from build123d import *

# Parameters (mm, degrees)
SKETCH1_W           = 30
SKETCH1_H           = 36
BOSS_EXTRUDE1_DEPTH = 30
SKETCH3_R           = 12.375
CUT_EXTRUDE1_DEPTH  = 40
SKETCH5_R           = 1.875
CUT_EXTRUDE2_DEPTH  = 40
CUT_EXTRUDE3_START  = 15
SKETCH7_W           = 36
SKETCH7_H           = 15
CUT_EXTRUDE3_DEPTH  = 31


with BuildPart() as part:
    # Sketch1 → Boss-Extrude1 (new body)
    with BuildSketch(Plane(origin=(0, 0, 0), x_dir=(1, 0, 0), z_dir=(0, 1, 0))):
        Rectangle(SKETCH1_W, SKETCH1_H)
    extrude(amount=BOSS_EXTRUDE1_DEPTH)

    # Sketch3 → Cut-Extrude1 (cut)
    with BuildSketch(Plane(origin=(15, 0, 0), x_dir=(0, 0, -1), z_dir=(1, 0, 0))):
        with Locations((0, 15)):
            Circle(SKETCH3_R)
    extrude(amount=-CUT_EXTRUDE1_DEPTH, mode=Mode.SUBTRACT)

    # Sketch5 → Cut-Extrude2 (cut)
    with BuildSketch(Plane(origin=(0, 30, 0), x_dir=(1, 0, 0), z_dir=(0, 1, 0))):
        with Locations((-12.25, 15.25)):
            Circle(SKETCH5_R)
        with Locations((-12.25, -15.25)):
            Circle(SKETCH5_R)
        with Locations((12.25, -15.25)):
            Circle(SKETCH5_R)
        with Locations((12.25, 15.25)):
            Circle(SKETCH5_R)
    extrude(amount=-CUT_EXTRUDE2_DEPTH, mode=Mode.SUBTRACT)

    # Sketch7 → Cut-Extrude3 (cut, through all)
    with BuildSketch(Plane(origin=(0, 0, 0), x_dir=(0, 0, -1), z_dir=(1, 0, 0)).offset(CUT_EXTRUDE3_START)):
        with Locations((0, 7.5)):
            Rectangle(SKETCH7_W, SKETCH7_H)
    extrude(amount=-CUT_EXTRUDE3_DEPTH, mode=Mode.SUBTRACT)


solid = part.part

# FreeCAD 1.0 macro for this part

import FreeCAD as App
import Part
import Sketcher

V = App.Vector


def add_polygon(sketch, points):
    """Adds a closed chain of lines whose ends are joined by coincident constraints."""
    first, n = sketch.GeometryCount, len(points)
    for a, b in zip(points, points[1:] + points[:1]):
        sketch.addGeometry(Part.LineSegment(App.Vector(*a, 0), App.Vector(*b, 0)), False)
    for i in range(n):
        sketch.addConstraint(Sketcher.Constraint("Coincident", first + i, 2, first + (i + 1) % n, 1))

doc = App.newDocument("Part")
body = doc.addObject("PartDesign::Body", "Body")

sketch1 = body.newObject("Sketcher::SketchObject", "Sketch")
sketch1.AttachmentSupport = (doc.getObject("XZ_Plane"), [""])
sketch1.MapMode = "FlatFace"
add_polygon(sketch1, [(-15, -18), (-15, 18), (15, 18), (15, -18)])
sketch1.addConstraint([
    Sketcher.Constraint("Vertical", 0),
    Sketcher.Constraint("Horizontal", 1),
    Sketcher.Constraint("Vertical", 2),
    Sketcher.Constraint("Horizontal", 3),
    Sketcher.Constraint("Symmetric", 0, 2, 2, 2, -1, 1),
    Sketcher.Constraint("DistanceX", 1, 1, 1, 2, 30.0),
    Sketcher.Constraint("DistanceY", 0, 1, 0, 2, 36.0),
])
pad1 = body.newObject("PartDesign::Pad", "Pad")
pad1.Profile = sketch1
pad1.Length = 30
pad1.Reversed = True

sketch2 = body.newObject("Sketcher::SketchObject", "Sketch001")
sketch2.AttachmentSupport = (doc.getObject("YZ_Plane"), [""])
sketch2.MapMode = "FlatFace"
sketch2.AttachmentOffset = App.Placement(V(0, 0, 15), App.Rotation())
sketch2.addGeometry(Part.Circle(V(15, 0, 0), V(0, 0, 1), 12), False)
sketch2.addConstraint([
    Sketcher.Constraint("PointOnObject", 0, 3, -1),
    Sketcher.Constraint("Diameter", 0, 24.75),
    Sketcher.Constraint("DistanceX", -1, 1, 0, 3, 15.0),
])
pocket1 = body.newObject("PartDesign::Pocket", "Pocket")
pocket1.Profile = sketch2
pocket1.Length = 40

sketch3 = body.newObject("Sketcher::SketchObject", "Sketch002")
sketch3.AttachmentSupport = (doc.getObject("XZ_Plane"), [""])
sketch3.MapMode = "FlatFace"
sketch3.AttachmentOffset = App.Placement(V(0, 0, -30), App.Rotation())
sketch3.addGeometry([
    Part.Circle(V(-12.2, -15.2, 0), V(0, 0, 1), 1.9),
    Part.Circle(V(-12.2, 15.2, 0), V(0, 0, 1), 1.9),
    Part.Circle(V(12.2, 15.2, 0), V(0, 0, 1), 1.9),
    Part.Circle(V(12.2, -15.2, 0), V(0, 0, 1), 1.9),
], False)
sketch3.addConstraint([
    Sketcher.Constraint("Equal", 0, 1),
    Sketcher.Constraint("Equal", 1, 2),
    Sketcher.Constraint("Equal", 2, 3),
    Sketcher.Constraint("Symmetric", 0, 3, 2, 3, -1, 1),
    Sketcher.Constraint("Symmetric", 1, 3, 3, 3, -1, 1),
    Sketcher.Constraint("Symmetric", 1, 3, 2, 3, -2),
    Sketcher.Constraint("Diameter", 0, 3.75),
    Sketcher.Constraint("DistanceY", 0, 3, 1, 3, 30.5),
    Sketcher.Constraint("DistanceX", 1, 3, 2, 3, 24.5),
])
pocket2 = body.newObject("PartDesign::Pocket", "Pocket001")
pocket2.Profile = sketch3
pocket2.Length = 40
pocket2.Reversed = True

sketch4 = body.newObject("Sketcher::SketchObject", "Sketch003")
sketch4.AttachmentSupport = (doc.getObject("YZ_Plane"), [""])
sketch4.MapMode = "FlatFace"
sketch4.AttachmentOffset = App.Placement(V(0, 0, 15), App.Rotation())
add_polygon(sketch4, [(15, 18), (0, 18), (0, -18), (15, -18)])
sketch4.addConstraint([
    Sketcher.Constraint("Horizontal", 0),
    Sketcher.Constraint("Vertical", 1),
    Sketcher.Constraint("Horizontal", 2),
    Sketcher.Constraint("Vertical", 3),
    Sketcher.Constraint("Symmetric", 0, 2, 1, 2, -1, 1),
    Sketcher.Constraint("DistanceX", 0, 2, 0, 1, 15.0),
    Sketcher.Constraint("DistanceY", 1, 2, 1, 1, 36.0),
])
pocket3 = body.newObject("PartDesign::Pocket", "Pocket002")
pocket3.Profile = sketch4
pocket3.Type = "ThroughAll"

doc.recompute()
